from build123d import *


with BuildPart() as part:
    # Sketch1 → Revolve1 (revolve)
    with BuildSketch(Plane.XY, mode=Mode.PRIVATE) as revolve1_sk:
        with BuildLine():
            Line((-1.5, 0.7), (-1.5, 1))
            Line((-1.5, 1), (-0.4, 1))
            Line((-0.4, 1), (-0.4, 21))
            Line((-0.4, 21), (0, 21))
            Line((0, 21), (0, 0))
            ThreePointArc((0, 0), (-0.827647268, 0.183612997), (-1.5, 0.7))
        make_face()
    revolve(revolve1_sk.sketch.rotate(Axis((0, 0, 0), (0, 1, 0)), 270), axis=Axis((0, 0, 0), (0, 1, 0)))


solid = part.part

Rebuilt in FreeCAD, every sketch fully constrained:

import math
import FreeCAD as App
import Part
import Sketcher

doc = App.newDocument("Part")
body = doc.addObject("PartDesign::Body", "Body")

# Sketch on XY plane
sketch1 = doc.addObject("Sketcher::SketchObject", "Sketch")
body.addObject(sketch1)
sketch1.AttachmentSupport = (doc.XY_Plane, [""])
sketch1.MapMode = "FlatFace"
sketch1.addGeometry(Part.LineSegment(App.Vector(-1.5, 1, 0), App.Vector(-1.5, 0.7, 0)), False)
sketch1.addGeometry(Part.ArcOfCircle(Part.Circle(App.Vector(0, 1.96, 0), App.Vector(0, 0, 1), 1.96), math.radians(-140), math.radians(-90)), False)
sketch1.addGeometry(Part.LineSegment(App.Vector(0, 0, 0), App.Vector(0, 21, 0)), False)
sketch1.addGeometry(Part.LineSegment(App.Vector(0, 21, 0), App.Vector(-0.4, 21, 0)), False)
sketch1.addGeometry(Part.LineSegment(App.Vector(-0.4, 21, 0), App.Vector(-0.4, 1, 0)), False)
sketch1.addGeometry(Part.LineSegment(App.Vector(-0.4, 1, 0), App.Vector(-1.5, 1, 0)), False)
sketch1.addConstraint(Sketcher.Constraint("Coincident", 0, 2, 1, 1))
sketch1.addConstraint(Sketcher.Constraint("Coincident", 1, 2, 2, 1))
sketch1.addConstraint(Sketcher.Constraint("Coincident", 2, 2, 3, 1))
sketch1.addConstraint(Sketcher.Constraint("Coincident", 3, 2, 4, 1))
sketch1.addConstraint(Sketcher.Constraint("Coincident", 4, 2, 5, 1))
sketch1.addConstraint(Sketcher.Constraint("Coincident", 5, 2, 0, 1))
sketch1.addConstraint(Sketcher.Constraint("Vertical", 0))
sketch1.addConstraint(Sketcher.Constraint("Vertical", 2))
sketch1.addConstraint(Sketcher.Constraint("Horizontal", 3))
sketch1.addConstraint(Sketcher.Constraint("Vertical", 4))
sketch1.addConstraint(Sketcher.Constraint("Horizontal", 5))
sketch1.addConstraint(Sketcher.Constraint("Coincident", 1, 2, -1, 1))
sketch1.addConstraint(Sketcher.Constraint("PointOnObject", 1, 3, -2))
sketch1.addConstraint(Sketcher.Constraint("DistanceY", 2, 1, 2, 2, 21.0))
sketch1.addConstraint(Sketcher.Constraint("DistanceY", 4, 2, 4, 1, 20.0))
sketch1.addConstraint(Sketcher.Constraint("DistanceX", 3, 2, 3, 1, 0.4))
sketch1.addConstraint(Sketcher.Constraint("DistanceX", 5, 2, 5, 1, 1.1))
sketch1.addConstraint(Sketcher.Constraint("DistanceY", 0, 2, 0, 1, 0.3))
revolution = doc.addObject("PartDesign::Revolution", "Revolution")
body.addObject(revolution)
revolution.Profile = sketch1
revolution.ReferenceAxis = (sketch1, ["V_Axis"])
revolution.Angle = 360

doc.recompute()
